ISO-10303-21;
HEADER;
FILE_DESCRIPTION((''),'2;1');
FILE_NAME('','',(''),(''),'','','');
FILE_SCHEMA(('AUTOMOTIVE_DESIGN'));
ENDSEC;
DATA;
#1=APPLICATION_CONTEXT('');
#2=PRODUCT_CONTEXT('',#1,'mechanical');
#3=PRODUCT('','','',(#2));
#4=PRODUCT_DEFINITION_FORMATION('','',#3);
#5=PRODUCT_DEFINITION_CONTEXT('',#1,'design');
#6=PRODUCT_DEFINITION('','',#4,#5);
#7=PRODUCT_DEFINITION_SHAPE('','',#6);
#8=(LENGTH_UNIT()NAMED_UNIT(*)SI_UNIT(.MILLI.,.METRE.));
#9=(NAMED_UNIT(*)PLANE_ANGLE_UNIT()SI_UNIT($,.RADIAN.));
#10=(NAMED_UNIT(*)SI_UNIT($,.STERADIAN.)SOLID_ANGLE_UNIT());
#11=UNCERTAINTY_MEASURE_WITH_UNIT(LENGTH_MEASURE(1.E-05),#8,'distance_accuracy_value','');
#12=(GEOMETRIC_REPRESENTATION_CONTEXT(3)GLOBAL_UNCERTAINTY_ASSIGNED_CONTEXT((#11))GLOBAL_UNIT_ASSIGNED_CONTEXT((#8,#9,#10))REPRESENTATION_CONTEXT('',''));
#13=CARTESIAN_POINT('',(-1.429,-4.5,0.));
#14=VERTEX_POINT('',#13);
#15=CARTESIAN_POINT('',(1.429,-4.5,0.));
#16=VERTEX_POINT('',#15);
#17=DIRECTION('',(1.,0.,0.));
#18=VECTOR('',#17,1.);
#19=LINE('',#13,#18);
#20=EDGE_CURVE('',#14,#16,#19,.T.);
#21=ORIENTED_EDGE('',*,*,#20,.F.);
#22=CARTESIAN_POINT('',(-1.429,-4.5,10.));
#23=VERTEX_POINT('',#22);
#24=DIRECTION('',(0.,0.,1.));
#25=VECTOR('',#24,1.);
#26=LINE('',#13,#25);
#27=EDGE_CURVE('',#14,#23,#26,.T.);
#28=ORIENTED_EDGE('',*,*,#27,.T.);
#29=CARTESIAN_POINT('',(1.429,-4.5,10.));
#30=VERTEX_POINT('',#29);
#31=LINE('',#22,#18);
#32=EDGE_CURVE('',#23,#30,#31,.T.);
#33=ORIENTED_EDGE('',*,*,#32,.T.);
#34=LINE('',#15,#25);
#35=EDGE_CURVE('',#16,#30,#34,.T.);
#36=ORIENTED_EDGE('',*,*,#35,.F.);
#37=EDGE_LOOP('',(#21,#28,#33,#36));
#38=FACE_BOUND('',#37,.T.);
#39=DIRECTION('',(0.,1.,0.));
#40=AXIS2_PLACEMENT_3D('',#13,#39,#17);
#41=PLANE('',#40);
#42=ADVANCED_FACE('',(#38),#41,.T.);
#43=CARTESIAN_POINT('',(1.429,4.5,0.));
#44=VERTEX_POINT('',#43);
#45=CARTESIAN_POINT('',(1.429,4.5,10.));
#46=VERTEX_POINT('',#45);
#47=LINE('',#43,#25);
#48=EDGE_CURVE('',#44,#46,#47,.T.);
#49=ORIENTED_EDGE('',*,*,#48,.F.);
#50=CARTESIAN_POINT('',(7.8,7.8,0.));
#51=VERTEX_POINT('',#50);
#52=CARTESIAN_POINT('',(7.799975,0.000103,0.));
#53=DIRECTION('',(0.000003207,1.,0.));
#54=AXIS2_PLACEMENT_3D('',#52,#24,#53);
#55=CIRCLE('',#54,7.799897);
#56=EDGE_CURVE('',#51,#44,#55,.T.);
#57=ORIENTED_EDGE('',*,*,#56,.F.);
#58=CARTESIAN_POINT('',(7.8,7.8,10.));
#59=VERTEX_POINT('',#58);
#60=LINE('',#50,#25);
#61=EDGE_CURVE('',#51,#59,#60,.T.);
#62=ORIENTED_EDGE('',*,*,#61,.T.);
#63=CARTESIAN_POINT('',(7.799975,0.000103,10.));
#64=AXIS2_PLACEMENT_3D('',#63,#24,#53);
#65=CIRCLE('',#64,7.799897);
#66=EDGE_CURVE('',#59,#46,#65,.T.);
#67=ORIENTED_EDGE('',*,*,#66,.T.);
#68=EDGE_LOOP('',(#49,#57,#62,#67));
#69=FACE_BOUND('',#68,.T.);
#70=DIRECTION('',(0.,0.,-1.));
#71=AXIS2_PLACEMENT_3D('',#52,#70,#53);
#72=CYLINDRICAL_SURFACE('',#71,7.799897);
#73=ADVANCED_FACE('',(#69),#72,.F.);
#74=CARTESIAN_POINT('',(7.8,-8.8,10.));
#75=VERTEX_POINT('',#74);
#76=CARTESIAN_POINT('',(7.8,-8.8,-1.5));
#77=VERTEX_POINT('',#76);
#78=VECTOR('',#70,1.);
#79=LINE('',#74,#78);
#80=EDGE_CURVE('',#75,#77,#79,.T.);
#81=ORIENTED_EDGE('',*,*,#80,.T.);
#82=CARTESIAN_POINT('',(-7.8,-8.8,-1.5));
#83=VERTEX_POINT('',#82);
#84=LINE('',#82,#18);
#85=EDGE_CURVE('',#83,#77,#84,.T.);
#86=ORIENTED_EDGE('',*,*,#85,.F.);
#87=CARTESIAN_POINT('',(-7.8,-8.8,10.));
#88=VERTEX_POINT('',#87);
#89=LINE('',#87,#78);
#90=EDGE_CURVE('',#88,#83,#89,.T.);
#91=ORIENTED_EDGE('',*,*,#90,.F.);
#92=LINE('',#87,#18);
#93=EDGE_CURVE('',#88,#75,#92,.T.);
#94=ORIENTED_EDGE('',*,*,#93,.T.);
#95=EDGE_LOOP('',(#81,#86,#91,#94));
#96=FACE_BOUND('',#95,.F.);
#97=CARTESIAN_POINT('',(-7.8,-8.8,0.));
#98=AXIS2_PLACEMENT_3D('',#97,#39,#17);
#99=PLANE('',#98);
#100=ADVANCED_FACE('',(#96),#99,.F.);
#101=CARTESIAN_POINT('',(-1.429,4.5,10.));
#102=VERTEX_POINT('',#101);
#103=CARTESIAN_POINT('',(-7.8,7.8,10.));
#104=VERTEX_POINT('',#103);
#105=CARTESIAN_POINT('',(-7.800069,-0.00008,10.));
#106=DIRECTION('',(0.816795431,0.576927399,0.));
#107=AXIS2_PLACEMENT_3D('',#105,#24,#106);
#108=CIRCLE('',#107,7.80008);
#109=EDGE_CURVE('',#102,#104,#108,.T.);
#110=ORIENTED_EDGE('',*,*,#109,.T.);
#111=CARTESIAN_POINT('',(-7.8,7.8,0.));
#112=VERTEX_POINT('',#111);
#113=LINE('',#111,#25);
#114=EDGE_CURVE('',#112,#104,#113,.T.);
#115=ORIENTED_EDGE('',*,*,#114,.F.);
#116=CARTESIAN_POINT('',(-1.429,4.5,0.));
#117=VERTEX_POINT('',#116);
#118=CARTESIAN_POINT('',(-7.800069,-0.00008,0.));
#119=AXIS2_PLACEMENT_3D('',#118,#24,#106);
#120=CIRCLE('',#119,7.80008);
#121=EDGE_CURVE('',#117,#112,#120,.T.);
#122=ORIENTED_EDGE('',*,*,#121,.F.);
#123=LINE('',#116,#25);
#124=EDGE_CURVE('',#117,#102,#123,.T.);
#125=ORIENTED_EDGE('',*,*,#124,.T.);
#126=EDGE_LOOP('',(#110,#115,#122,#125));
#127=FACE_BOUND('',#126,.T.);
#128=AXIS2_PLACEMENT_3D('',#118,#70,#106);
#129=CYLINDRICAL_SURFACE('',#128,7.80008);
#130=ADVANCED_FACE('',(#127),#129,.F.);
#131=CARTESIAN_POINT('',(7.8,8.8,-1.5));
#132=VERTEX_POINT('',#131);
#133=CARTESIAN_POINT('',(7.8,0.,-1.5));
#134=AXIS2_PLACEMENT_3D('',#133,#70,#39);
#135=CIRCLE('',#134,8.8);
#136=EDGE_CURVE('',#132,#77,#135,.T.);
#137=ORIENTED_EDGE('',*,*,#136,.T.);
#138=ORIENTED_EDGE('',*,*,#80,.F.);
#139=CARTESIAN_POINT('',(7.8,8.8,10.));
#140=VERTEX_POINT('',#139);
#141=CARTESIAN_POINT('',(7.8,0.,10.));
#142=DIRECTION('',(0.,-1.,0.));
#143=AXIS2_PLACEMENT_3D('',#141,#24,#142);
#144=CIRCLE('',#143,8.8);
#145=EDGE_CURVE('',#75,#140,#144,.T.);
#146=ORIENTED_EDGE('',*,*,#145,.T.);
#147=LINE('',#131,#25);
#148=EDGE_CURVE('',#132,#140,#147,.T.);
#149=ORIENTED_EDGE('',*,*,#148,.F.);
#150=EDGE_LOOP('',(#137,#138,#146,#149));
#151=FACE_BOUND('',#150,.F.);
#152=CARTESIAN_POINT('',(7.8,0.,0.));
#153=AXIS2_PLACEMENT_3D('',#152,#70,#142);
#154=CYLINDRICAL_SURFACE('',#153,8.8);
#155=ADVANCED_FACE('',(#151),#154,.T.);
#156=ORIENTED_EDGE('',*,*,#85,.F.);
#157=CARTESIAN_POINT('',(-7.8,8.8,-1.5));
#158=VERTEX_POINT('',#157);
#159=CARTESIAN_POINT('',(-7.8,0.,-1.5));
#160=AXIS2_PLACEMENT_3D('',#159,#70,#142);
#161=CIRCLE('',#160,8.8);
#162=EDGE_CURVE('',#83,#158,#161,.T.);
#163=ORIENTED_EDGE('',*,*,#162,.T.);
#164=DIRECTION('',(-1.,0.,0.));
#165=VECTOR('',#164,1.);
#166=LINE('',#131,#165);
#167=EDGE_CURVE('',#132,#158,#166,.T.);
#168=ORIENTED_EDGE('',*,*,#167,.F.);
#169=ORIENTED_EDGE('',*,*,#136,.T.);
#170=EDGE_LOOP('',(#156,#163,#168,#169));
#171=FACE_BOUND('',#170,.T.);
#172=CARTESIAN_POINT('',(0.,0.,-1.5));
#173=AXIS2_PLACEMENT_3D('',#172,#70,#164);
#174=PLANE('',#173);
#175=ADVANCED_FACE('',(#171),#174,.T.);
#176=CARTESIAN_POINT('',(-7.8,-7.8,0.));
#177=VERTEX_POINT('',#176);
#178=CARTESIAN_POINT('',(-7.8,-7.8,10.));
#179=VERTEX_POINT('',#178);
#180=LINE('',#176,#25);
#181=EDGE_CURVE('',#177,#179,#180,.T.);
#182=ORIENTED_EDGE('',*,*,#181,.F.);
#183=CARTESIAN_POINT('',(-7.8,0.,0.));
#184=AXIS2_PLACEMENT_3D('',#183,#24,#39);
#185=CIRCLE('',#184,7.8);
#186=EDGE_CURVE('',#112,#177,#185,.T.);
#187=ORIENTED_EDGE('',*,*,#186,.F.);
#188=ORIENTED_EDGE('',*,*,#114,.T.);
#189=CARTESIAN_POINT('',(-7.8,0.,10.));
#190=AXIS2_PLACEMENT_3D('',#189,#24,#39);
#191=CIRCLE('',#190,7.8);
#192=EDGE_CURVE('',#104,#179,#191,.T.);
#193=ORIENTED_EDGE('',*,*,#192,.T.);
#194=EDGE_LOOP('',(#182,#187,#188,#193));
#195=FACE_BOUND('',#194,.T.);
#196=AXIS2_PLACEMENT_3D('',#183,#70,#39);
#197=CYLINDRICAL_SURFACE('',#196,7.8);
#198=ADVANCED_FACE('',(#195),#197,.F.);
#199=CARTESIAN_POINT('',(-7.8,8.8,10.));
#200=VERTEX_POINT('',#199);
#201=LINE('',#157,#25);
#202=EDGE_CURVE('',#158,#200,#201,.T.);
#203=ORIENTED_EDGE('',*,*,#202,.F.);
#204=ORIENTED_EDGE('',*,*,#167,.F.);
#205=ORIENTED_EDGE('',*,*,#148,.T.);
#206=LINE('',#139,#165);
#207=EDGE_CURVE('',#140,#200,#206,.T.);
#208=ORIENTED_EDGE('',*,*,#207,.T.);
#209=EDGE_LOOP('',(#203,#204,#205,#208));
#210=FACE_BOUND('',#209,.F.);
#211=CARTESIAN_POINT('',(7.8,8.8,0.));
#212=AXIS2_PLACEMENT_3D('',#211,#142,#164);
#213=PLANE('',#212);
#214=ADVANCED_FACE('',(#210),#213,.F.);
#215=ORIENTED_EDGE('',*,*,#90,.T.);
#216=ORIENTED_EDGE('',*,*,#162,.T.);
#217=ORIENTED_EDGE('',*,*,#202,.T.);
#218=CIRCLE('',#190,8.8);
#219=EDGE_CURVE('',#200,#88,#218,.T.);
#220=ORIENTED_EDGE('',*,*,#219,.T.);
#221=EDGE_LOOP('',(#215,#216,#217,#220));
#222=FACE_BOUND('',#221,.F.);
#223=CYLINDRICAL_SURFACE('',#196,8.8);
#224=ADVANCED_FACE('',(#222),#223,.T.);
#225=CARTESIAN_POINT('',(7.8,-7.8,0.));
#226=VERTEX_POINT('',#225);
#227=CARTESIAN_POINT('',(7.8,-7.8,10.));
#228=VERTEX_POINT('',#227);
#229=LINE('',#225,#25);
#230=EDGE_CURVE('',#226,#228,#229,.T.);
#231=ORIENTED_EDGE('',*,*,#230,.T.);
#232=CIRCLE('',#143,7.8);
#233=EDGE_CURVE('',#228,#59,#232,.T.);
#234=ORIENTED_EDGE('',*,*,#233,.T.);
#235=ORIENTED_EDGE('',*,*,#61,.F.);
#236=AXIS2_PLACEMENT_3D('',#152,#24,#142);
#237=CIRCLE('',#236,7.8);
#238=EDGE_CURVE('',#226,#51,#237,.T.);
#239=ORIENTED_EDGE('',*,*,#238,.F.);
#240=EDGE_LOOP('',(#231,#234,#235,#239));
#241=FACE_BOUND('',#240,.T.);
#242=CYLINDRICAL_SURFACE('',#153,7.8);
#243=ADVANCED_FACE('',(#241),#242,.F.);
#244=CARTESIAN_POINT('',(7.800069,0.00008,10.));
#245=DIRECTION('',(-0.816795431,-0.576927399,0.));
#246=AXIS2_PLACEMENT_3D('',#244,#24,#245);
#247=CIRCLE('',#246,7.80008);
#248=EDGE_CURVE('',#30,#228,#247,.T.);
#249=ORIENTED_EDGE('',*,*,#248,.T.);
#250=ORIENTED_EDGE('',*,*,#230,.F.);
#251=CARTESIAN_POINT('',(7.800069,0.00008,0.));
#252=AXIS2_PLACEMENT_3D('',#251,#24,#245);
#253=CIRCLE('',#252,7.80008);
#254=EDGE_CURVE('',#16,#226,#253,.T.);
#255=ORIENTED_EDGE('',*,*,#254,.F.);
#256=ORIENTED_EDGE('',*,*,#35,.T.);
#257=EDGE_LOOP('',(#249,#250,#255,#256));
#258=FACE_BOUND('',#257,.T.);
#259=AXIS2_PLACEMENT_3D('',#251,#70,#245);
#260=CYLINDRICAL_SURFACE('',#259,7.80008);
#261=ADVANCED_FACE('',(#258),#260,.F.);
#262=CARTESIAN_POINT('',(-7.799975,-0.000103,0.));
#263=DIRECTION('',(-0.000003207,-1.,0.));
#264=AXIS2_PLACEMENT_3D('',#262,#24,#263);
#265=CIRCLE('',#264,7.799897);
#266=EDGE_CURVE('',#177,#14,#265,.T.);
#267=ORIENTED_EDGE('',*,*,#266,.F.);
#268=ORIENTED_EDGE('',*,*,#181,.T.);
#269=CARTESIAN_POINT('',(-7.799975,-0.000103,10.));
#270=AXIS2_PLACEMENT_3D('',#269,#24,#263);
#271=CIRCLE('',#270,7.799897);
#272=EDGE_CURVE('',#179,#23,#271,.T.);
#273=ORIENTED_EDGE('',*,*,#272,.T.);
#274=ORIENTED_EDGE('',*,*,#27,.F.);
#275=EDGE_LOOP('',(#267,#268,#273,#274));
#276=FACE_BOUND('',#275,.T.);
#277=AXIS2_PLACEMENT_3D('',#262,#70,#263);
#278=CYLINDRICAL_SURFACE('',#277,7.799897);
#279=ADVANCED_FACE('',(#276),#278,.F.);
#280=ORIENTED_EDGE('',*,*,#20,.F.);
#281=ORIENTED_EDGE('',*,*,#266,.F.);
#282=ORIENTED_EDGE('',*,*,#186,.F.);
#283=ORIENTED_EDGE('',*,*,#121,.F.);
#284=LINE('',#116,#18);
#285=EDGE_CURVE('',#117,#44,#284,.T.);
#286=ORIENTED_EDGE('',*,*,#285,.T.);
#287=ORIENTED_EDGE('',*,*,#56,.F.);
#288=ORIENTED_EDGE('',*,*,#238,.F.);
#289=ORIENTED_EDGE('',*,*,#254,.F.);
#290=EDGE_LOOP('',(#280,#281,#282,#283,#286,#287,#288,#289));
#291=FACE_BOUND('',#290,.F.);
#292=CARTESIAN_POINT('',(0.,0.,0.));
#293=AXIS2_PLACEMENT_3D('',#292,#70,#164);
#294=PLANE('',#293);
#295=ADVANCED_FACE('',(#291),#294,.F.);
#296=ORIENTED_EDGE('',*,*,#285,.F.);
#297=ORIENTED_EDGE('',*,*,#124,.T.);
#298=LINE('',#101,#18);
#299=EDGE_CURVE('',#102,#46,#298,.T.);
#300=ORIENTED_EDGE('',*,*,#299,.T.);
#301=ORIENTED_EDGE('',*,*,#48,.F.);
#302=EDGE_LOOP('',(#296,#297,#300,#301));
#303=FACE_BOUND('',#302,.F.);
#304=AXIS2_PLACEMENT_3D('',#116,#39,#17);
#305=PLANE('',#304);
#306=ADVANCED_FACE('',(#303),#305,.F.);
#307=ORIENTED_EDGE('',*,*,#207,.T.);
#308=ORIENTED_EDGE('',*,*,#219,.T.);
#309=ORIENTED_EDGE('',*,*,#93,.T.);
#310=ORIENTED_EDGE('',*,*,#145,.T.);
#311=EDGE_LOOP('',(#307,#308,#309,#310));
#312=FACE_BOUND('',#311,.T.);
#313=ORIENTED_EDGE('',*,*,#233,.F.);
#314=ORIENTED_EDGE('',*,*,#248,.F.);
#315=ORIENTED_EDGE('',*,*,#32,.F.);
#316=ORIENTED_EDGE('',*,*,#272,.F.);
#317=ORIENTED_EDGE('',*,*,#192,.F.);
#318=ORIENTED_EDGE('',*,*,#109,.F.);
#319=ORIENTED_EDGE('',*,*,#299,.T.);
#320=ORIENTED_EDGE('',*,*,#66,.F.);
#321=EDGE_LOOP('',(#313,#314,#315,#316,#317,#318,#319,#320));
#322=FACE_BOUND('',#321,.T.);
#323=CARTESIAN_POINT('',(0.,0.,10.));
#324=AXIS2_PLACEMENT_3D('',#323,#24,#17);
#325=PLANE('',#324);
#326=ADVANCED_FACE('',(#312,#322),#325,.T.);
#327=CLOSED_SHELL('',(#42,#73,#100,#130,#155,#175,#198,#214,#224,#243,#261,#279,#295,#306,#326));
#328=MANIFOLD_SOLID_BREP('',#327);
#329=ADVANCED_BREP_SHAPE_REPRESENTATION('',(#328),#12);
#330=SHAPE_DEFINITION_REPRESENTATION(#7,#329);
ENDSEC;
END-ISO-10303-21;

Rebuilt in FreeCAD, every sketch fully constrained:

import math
import FreeCAD as App
import Part
import Sketcher
from FreeCAD import Vector

doc = App.newDocument("Part")
body = doc.addObject("PartDesign::Body", "Body")

sketch1 = body.newObject("Sketcher::SketchObject", "Sketch")
sketch1.AttachmentSupport = (doc.getObject("XY_Plane"), [""])
sketch1.MapMode = "FlatFace"
sketch1.addGeometry(Part.ArcOfCircle(Part.Circle(Vector(7.8, 0, 0), Vector(0, 0, 1), 8.8), math.radians(-90), math.radians(90)), False)
sketch1.addGeometry(Part.LineSegment(Vector(7.8, 8.8, 0), Vector(-7.8, 8.8, 0)), False)
sketch1.addGeometry(Part.ArcOfCircle(Part.Circle(Vector(-7.8, 0, 0), Vector(0, 0, 1), 8.8), math.radians(90), math.radians(270)), False)
sketch1.addGeometry(Part.LineSegment(Vector(-7.8, -8.8, 0), Vector(7.8, -8.8, 0)), False)
sketch1.addGeometry(Part.ArcOfCircle(Part.Circle(Vector(7.8, 0, 0), Vector(0, 0, 1), 7.8), math.radians(-90), math.radians(90)), False)
sketch1.addGeometry(Part.LineSegment(Vector(7.8, -7.8, 0), Vector(-7.8, -7.8, 0)), False)
sketch1.addGeometry(Part.ArcOfCircle(Part.Circle(Vector(-7.8, 0, 0), Vector(0, 0, 1), 7.8), math.radians(90), math.radians(270)), False)
sketch1.addGeometry(Part.LineSegment(Vector(-7.8, 7.8, 0), Vector(7.8, 7.8, 0)), False)
sketch1.addConstraint(Sketcher.Constraint("Tangent", 0, 2, 1, 1))
sketch1.addConstraint(Sketcher.Constraint("Tangent", 1, 2, 2, 1))
sketch1.addConstraint(Sketcher.Constraint("Tangent", 2, 2, 3, 1))
sketch1.addConstraint(Sketcher.Constraint("Tangent", 3, 2, 0, 1))
sketch1.addConstraint(Sketcher.Constraint("Tangent", 4, 1, 5, 1))
sketch1.addConstraint(Sketcher.Constraint("Tangent", 5, 2, 6, 2))
sketch1.addConstraint(Sketcher.Constraint("Tangent", 6, 1, 7, 1))
sketch1.addConstraint(Sketcher.Constraint("Tangent", 7, 2, 4, 2))
sketch1.addConstraint(Sketcher.Constraint("Horizontal", 1))
sketch1.addConstraint(Sketcher.Constraint("Horizontal", 3))
sketch1.addConstraint(Sketcher.Constraint("Horizontal", 5))
sketch1.addConstraint(Sketcher.Constraint("Horizontal", 7))
sketch1.addConstraint(Sketcher.Constraint("Coincident", 4, 3, 0, 3))
sketch1.addConstraint(Sketcher.Constraint("Symmetric", 0, 3, 2, 3, -1, 1))
sketch1.addConstraint(Sketcher.Constraint("Vertical", 6, 3, 1, 2))
sketch1.addConstraint(Sketcher.Constraint("Radius", 4, 7.8))
sketch1.addConstraint(Sketcher.Constraint("DistanceX", 1, 2, 1, 1, 15.6))
sketch1.addConstraint(Sketcher.Constraint("DistanceY", 3, 2, 4, 1, 1.0))
pad1 = body.newObject("PartDesign::Pad", "Pad")
pad1.Profile = sketch1
pad1.Length = 10

sketch2 = body.newObject("Sketcher::SketchObject", "Sketch001")
sketch2.AttachmentSupport = (doc.getObject("XY_Plane"), [""])
sketch2.MapMode = "FlatFace"
sketch2.addGeometry(Part.LineSegment(Vector(-7.8, 8.8, 0), Vector(7.8, 8.8, 0)), False)
sketch2.addGeometry(Part.ArcOfCircle(Part.Circle(Vector(7.8, 0, 0), Vector(0, 0, 1), 8.8), math.radians(-90), math.radians(90)), False)
sketch2.addGeometry(Part.LineSegment(Vector(7.8, -8.8, 0), Vector(-7.8, -8.8, 0)), False)
sketch2.addGeometry(Part.ArcOfCircle(Part.Circle(Vector(-7.8, 0, 0), Vector(0, 0, 1), 8.8), math.radians(90), math.radians(270)), False)
sketch2.addConstraint(Sketcher.Constraint("Tangent", 0, 2, 1, 2))
sketch2.addConstraint(Sketcher.Constraint("Tangent", 1, 1, 2, 1))
sketch2.addConstraint(Sketcher.Constraint("Tangent", 2, 2, 3, 2))
sketch2.addConstraint(Sketcher.Constraint("Tangent", 3, 1, 0, 1))
sketch2.addConstraint(Sketcher.Constraint("Horizontal", 0))
sketch2.addConstraint(Sketcher.Constraint("Horizontal", 2))
sketch2.addConstraint(Sketcher.Constraint("Symmetric", 1, 3, 3, 3, -1, 1))
sketch2.addConstraint(Sketcher.Constraint("Radius", 1, 8.8))
sketch2.addConstraint(Sketcher.Constraint("DistanceX", 0, 1, 0, 2, 15.6))
pad2 = body.newObject("PartDesign::Pad", "Pad001")
pad2.Profile = sketch2
pad2.Length = 1.5
pad2.Reversed = True

sketch3 = body.newObject("Sketcher::SketchObject", "Sketch002")
sketch3.AttachmentSupport = (doc.getObject("XY_Plane"), [""])
sketch3.MapMode = "FlatFace"
sketch3.addGeometry(Part.LineSegment(Vector(7.8, 7.8, 0), Vector(-7.8, 7.8, 0)), False)
sketch3.addGeometry(Part.ArcOfCircle(Part.Circle(Vector(-7.8, 0, 0), Vector(0, 0, 1), 7.8), math.radians(35.234537), math.radians(90)), False)
sketch3.addGeometry(Part.LineSegment(Vector(-1.429, 4.5, 0), Vector(1.429, 4.5, 0)), False)
sketch3.addGeometry(Part.ArcOfCircle(Part.Circle(Vector(7.8, 0, 0), Vector(0, 0, 1), 7.799977), math.radians(90), math.radians(144.765463)), False)
sketch3.addGeometry(Part.ArcOfCircle(Part.Circle(Vector(-7.8, 0, 0), Vector(0, 0, 1), 7.799977), math.radians(-90), math.radians(-35.234537)), False)
sketch3.addGeometry(Part.LineSegment(Vector(-7.8, -7.8, 0), Vector(7.8, -7.8, 0)), False)
sketch3.addGeometry(Part.ArcOfCircle(Part.Circle(Vector(7.8, 0, 0), Vector(0, 0, 1), 7.8), math.radians(-144.765463), math.radians(-90)), False)
sketch3.addGeometry(Part.LineSegment(Vector(1.429, -4.5, 0), Vector(-1.429, -4.5, 0)), False)
sketch3.addConstraint(Sketcher.Constraint("Tangent", 0, 2, 1, 2))
sketch3.addConstraint(Sketcher.Constraint("Coincident", 1, 1, 2, 1))
sketch3.addConstraint(Sketcher.Constraint("Coincident", 2, 2, 3, 2))
sketch3.addConstraint(Sketcher.Constraint("Tangent", 3, 1, 0, 1))
sketch3.addConstraint(Sketcher.Constraint("Tangent", 4, 1, 5, 1))
sketch3.addConstraint(Sketcher.Constraint("Tangent", 5, 2, 6, 2))
sketch3.addConstraint(Sketcher.Constraint("Coincident", 6, 1, 7, 1))
sketch3.addConstraint(Sketcher.Constraint("Coincident", 7, 2, 4, 2))
sketch3.addConstraint(Sketcher.Constraint("Horizontal", 0))
sketch3.addConstraint(Sketcher.Constraint("Horizontal", 2))
sketch3.addConstraint(Sketcher.Constraint("Horizontal", 5))
sketch3.addConstraint(Sketcher.Constraint("Horizontal", 7))
sketch3.addConstraint(Sketcher.Constraint("Coincident", 4, 3, 1, 3))
sketch3.addConstraint(Sketcher.Constraint("Coincident", 6, 3, 3, 3))
sketch3.addConstraint(Sketcher.Constraint("Equal", 1, 3))
sketch3.addConstraint(Sketcher.Constraint("Equal", 3, 4))
sketch3.addConstraint(Sketcher.Constraint("Symmetric", 1, 3, 3, 3, -1, 1))
sketch3.addConstraint(Sketcher.Constraint("Vertical", 2, 2, 6, 1))
sketch3.addConstraint(Sketcher.Constraint("DistanceY", 6, 1, 2, 2, 9.0))
sketch3.addConstraint(Sketcher.Constraint("Radius", 1, 7.8))
sketch3.addConstraint(Sketcher.Constraint("DistanceX", 0, 2, 0, 1, 15.6))
pad3 = body.newObject("PartDesign::Pad", "Pad002")
pad3.Profile = sketch3
pad3.Length = 10

doc.recompute()
